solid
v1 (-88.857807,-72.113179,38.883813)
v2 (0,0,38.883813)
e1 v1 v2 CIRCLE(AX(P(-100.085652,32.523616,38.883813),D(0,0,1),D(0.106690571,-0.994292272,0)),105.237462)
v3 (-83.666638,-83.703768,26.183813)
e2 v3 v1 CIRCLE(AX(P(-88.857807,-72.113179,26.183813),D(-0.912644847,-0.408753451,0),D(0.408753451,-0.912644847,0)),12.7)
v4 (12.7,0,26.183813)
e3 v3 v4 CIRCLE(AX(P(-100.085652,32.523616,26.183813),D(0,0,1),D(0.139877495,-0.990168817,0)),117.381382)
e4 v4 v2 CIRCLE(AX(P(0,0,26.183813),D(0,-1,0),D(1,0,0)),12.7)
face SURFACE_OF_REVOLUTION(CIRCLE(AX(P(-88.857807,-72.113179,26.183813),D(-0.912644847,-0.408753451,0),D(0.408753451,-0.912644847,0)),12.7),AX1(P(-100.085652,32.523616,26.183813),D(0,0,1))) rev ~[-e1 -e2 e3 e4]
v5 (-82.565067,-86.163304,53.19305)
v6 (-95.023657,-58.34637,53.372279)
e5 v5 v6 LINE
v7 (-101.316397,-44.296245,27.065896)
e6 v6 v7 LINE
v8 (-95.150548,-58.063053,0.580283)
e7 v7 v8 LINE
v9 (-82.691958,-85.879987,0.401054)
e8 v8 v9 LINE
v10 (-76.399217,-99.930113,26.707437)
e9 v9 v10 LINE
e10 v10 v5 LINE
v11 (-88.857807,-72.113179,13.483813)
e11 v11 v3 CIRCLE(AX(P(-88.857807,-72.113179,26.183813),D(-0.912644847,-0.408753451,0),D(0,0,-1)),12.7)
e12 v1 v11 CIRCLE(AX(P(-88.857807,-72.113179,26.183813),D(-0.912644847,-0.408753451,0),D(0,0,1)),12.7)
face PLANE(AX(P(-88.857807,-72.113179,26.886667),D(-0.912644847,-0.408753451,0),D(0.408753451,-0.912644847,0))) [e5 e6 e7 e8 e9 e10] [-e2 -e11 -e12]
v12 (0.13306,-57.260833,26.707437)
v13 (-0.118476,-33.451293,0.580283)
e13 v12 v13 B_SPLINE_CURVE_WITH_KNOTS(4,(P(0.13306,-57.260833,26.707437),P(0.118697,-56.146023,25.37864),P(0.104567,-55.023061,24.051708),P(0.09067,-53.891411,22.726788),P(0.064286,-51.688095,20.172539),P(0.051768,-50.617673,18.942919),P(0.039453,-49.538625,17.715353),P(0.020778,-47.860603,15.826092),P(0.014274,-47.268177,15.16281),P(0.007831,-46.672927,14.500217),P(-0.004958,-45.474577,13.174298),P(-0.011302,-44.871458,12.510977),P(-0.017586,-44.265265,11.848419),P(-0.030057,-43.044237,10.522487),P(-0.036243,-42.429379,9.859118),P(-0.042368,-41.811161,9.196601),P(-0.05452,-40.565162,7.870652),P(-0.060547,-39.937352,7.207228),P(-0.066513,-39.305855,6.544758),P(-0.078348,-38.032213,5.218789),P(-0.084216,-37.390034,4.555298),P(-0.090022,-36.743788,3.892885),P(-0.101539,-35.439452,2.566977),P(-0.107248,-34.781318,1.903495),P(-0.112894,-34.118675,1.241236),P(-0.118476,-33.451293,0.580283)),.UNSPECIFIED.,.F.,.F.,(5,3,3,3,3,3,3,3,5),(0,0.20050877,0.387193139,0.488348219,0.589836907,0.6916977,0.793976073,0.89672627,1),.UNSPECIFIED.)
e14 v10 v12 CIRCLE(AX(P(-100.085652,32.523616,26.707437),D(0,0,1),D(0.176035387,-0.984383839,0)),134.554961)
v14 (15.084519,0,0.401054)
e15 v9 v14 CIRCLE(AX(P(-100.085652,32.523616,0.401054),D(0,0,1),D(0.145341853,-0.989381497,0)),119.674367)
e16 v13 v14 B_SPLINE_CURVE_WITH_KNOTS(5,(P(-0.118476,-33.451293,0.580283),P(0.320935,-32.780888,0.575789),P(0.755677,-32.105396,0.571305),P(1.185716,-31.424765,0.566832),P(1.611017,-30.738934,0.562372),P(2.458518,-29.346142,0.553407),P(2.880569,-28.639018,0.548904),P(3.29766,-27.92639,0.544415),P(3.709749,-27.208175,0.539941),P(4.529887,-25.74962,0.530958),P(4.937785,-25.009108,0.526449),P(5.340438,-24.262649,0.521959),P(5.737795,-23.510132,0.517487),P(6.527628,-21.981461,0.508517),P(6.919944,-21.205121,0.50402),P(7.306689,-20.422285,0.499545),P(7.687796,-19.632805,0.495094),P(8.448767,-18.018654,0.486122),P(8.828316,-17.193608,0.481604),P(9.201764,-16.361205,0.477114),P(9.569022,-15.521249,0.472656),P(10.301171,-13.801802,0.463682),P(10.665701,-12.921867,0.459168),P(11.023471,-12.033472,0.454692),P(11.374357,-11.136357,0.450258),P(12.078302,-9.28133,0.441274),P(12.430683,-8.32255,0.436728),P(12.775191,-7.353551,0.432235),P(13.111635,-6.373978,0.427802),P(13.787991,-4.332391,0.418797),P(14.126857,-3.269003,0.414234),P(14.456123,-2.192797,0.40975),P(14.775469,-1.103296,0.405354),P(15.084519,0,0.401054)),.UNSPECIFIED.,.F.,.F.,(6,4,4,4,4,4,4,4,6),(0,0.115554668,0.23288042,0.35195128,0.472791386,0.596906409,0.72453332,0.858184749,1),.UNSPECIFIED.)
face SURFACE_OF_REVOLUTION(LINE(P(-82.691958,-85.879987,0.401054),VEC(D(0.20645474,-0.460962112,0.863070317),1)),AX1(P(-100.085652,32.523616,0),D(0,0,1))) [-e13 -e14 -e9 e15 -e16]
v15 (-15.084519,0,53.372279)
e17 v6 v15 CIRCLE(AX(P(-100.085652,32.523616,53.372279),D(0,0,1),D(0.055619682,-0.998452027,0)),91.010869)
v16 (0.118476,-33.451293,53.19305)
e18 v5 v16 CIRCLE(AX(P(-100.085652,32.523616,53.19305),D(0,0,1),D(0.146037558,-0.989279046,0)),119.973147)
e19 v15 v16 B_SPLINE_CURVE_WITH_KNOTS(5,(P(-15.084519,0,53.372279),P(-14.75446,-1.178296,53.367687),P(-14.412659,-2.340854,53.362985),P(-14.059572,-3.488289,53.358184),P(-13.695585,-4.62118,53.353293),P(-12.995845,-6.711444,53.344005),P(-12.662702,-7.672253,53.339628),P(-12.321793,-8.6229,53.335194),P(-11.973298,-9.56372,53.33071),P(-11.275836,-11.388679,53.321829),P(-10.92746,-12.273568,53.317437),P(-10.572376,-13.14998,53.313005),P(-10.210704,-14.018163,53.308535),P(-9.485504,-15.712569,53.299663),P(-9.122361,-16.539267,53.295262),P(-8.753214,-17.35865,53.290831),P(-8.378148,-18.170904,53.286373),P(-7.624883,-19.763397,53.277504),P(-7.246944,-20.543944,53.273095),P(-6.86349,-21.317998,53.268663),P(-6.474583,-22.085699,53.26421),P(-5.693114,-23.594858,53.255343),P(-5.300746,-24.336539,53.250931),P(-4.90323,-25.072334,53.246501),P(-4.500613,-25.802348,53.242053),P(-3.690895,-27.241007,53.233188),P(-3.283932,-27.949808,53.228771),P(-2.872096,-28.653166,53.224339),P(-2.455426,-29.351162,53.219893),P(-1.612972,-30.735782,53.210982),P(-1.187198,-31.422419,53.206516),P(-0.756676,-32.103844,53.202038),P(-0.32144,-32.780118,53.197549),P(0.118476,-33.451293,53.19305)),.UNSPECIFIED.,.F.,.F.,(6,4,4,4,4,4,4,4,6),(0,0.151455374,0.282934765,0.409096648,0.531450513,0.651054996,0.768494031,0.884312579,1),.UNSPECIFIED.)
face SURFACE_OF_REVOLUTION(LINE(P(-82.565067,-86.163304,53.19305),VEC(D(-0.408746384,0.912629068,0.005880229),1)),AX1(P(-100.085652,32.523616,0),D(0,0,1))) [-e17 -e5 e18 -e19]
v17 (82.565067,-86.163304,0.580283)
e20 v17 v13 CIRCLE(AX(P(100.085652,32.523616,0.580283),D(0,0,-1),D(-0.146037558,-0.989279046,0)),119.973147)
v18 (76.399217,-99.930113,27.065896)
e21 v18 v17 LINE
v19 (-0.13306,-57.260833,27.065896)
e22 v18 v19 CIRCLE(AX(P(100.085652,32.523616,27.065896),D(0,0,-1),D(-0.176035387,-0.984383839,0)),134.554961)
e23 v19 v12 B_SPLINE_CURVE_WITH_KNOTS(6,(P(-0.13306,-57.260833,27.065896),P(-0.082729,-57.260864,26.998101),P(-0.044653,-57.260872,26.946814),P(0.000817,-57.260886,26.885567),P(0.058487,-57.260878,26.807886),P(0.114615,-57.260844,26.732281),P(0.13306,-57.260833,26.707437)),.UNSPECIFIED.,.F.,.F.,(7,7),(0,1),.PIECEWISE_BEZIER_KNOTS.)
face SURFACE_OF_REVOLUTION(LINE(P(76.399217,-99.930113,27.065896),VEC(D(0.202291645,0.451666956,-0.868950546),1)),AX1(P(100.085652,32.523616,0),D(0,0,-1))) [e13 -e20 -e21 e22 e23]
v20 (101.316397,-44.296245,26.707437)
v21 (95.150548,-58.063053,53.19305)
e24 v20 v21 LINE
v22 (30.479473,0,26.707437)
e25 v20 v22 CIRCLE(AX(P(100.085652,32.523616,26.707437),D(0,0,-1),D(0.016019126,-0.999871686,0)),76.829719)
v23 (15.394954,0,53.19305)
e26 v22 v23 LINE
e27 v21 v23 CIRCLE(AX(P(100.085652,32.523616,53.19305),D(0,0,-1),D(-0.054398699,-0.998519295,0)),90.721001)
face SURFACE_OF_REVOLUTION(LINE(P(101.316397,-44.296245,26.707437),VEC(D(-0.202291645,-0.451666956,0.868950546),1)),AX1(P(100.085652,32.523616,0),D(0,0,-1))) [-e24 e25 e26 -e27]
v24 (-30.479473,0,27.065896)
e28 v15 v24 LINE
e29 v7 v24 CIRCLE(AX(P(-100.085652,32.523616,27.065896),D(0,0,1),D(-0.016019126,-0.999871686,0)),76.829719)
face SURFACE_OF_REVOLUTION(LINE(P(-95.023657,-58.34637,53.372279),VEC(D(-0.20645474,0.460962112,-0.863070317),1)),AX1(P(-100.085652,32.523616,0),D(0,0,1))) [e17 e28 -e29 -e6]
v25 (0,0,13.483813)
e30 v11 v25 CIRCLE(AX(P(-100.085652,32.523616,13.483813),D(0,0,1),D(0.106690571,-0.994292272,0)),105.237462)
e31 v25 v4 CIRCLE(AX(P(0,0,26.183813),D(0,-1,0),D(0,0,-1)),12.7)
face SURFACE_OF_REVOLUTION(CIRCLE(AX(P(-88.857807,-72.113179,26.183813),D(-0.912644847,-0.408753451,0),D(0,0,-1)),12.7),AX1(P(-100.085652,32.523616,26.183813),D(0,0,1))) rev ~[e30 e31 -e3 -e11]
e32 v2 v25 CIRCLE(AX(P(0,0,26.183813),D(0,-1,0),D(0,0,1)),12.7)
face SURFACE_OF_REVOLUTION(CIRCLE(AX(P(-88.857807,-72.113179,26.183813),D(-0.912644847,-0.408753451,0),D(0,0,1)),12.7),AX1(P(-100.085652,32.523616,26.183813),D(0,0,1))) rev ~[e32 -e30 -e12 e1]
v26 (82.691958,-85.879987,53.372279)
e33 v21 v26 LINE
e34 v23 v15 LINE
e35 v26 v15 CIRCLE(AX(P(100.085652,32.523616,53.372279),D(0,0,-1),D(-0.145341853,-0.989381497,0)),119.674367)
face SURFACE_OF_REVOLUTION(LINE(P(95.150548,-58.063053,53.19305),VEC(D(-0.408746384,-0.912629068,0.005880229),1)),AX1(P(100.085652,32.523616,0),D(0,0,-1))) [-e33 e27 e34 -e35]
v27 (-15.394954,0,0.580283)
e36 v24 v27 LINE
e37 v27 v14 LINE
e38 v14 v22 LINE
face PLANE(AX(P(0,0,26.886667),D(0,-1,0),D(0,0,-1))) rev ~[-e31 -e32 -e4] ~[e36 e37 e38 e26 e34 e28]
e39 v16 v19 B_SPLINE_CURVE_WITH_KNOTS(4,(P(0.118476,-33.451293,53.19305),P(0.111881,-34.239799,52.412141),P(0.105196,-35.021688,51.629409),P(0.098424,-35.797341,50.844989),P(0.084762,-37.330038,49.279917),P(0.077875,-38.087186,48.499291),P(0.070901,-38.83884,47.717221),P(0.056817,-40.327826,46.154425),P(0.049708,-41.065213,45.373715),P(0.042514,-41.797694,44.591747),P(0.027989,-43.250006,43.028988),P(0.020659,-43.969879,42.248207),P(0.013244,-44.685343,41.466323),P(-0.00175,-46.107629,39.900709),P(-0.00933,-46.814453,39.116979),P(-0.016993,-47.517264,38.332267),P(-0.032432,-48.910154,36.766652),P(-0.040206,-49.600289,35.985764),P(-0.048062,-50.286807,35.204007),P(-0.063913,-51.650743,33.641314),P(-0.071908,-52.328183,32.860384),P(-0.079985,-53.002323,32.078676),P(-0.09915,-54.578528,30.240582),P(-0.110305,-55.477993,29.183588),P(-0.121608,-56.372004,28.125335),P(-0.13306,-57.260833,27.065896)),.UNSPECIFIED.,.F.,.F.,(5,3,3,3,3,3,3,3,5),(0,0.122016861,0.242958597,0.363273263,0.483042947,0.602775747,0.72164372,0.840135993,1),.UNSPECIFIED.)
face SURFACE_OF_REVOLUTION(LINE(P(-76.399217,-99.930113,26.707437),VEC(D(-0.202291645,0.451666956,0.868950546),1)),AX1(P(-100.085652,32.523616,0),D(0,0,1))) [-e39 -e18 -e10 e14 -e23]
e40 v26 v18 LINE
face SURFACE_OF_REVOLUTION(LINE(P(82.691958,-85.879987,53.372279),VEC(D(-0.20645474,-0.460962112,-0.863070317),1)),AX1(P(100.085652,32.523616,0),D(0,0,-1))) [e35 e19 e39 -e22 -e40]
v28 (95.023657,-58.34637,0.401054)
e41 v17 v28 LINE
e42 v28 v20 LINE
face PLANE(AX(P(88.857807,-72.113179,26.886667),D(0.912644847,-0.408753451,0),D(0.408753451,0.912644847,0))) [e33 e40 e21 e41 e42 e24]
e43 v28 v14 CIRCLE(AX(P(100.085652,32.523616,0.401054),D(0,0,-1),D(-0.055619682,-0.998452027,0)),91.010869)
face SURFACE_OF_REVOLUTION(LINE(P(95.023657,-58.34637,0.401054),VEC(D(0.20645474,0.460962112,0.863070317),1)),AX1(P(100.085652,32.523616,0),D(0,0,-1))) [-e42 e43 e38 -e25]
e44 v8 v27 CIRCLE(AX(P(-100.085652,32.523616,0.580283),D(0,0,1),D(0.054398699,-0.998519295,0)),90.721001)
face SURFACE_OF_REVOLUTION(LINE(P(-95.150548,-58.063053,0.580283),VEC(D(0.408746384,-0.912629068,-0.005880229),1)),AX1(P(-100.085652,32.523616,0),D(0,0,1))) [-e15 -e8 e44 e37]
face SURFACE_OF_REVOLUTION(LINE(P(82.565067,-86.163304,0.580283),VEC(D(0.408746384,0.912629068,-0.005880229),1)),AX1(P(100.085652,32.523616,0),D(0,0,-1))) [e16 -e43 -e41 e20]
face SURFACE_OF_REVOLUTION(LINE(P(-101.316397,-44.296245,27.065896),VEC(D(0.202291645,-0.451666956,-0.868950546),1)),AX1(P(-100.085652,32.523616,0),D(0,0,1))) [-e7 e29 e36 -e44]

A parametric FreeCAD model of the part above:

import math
import FreeCAD as App
import Part
import Sketcher

V = App.Vector
Q = App.Units.Quantity


def add_polygon(sketch, points):
    """Adds a closed chain of lines whose ends are joined by coincident constraints."""
    first, n = sketch.GeometryCount, len(points)
    for a, b in zip(points, points[1:] + points[:1]):
        sketch.addGeometry(Part.LineSegment(App.Vector(*a, 0), App.Vector(*b, 0)), False)
    for i in range(n):
        sketch.addConstraint(Sketcher.Constraint("Coincident", first + i, 2, first + (i + 1) % n, 1))

doc = App.newDocument("Part")
body = doc.addObject("PartDesign::Body", "Body")

# Sketch on XZ plane
sketch1 = body.newObject("Sketcher::SketchObject", "Sketch")
sketch1.AttachmentSupport = (doc.getObject("XZ_Plane"), [""])
sketch1.MapMode = "FlatFace"
add_polygon(sketch1, [(-30, 27), (-15, 1), (15, 0), (30, 27), (15, 53), (-15, 53)])  # lines 0-5
sketch1.addConstraint(Sketcher.Constraint("Parallel", 0, 3))
sketch1.addConstraint(Sketcher.Constraint("Parallel", 1, 4))
sketch1.addConstraint(Sketcher.Constraint("Parallel", 2, 5))
sketch1.addConstraint(Sketcher.Constraint("Equal", 0, 1))
sketch1.addConstraint(Sketcher.Constraint("Equal", 1, 2))
sketch1.addConstraint(Sketcher.Constraint("Equal", 2, 3))
sketch1.addConstraint(Sketcher.Constraint("Distance", 0, Q("1.2 in")))
sketch1.addConstraint(Sketcher.Constraint("DistanceX", -1, 1, 1, 2, 15.084519))
sketch1.addConstraint(Sketcher.Constraint("DistanceY", -1, 1, 3, 2, 53.19305))
sketch1.addConstraint(Sketcher.Constraint("DistanceX", 4, 2, -1, 1, 15.084519))
sketch1.addConstraint(Sketcher.Constraint("DistanceY", -1, 1, 4, 2, 53.372279))
sketch1.addConstraint(Sketcher.Constraint("DistanceX", 3, 2, 2, 2, 15.084519))

# Sketch on XY plane
sketch2 = body.newObject("Sketcher::SketchObject", "Sketch001")
sketch2.AttachmentSupport = (doc.getObject("XY_Plane"), [""])
sketch2.MapMode = "FlatFace"
sketch2.addGeometry(Part.ArcOfCircle(Part.Circle(V(100, 33, 0), V(0, 0, 1), 105), math.radians(-162), math.radians(-96)), False)
sketch2.addConstraint(Sketcher.Constraint("Coincident", 0, 1, -1, 1))
sketch2.addConstraint(Sketcher.Constraint("Radius", 0, 105.237462))
sketch2.addConstraint(Sketcher.Constraint("DistanceY", 0, 2, -1, 1, 72.113179))
sketch2.addConstraint(Sketcher.Constraint("DistanceX", -1, 1, 0, 3, 100.085652))
doc.recompute()

additivepipe = body.newObject("PartDesign::AdditivePipe", "AdditivePipe")
additivepipe.Profile = sketch1
additivepipe.Spine = (sketch2, ["Edge1"])

# Sketch on XZ plane
sketch3 = body.newObject("Sketcher::SketchObject", "Sketch002")
sketch3.AttachmentSupport = (doc.getObject("XZ_Plane"), [""])
sketch3.MapMode = "FlatFace"
add_polygon(sketch3, [(-30, 27), (-15, 1), (15, 0), (30, 27), (15, 53), (-15, 53)])  # lines 0-5
sketch3.addConstraint(Sketcher.Constraint("Parallel", 0, 3))
sketch3.addConstraint(Sketcher.Constraint("Parallel", 1, 4))
sketch3.addConstraint(Sketcher.Constraint("Parallel", 2, 5))
sketch3.addConstraint(Sketcher.Constraint("Equal", 0, 1))
sketch3.addConstraint(Sketcher.Constraint("Equal", 1, 2))
sketch3.addConstraint(Sketcher.Constraint("Equal", 2, 3))
sketch3.addConstraint(Sketcher.Constraint("Distance", 0, Q("1.2 in")))
sketch3.addConstraint(Sketcher.Constraint("DistanceX", -1, 1, 1, 2, 15.084519))
sketch3.addConstraint(Sketcher.Constraint("DistanceY", -1, 1, 3, 2, 53.19305))
sketch3.addConstraint(Sketcher.Constraint("DistanceX", 4, 2, -1, 1, 15.084519))
sketch3.addConstraint(Sketcher.Constraint("DistanceY", -1, 1, 4, 2, 53.372279))
sketch3.addConstraint(Sketcher.Constraint("DistanceX", 3, 2, 2, 2, 15.084519))

# Sketch on XY plane
sketch4 = body.newObject("Sketcher::SketchObject", "Sketch003")
sketch4.AttachmentSupport = (doc.getObject("XY_Plane"), [""])
sketch4.MapMode = "FlatFace"
sketch4.addGeometry(Part.ArcOfCircle(Part.Circle(V(-100, 33, 0), V(0, 0, 1), 105), math.radians(-84), math.radians(-18)), False)
sketch4.addConstraint(Sketcher.Constraint("Coincident", 0, 2, -1, 1))
sketch4.addConstraint(Sketcher.Constraint("Radius", 0, 105.237462))
sketch4.addConstraint(Sketcher.Constraint("DistanceY", 0, 1, -1, 1, 72.113179))
sketch4.addConstraint(Sketcher.Constraint("DistanceX", 0, 3, -1, 1, 100.085652))
doc.recompute()

additivepipe2 = body.newObject("PartDesign::AdditivePipe", "AdditivePipe001")
additivepipe2.Profile = sketch3
additivepipe2.Spine = (sketch4, ["Edge1"])

# Sketch on XZ plane
sketch5 = body.newObject("Sketcher::SketchObject", "Sketch004")
sketch5.AttachmentSupport = (doc.getObject("XZ_Plane"), [""])
sketch5.MapMode = "FlatFace"
sketch5.addGeometry(Part.ArcOfCircle(Part.Circle(V(0, 26, 0), V(0, 0, 1), 13), math.radians(-90), math.radians(0)), False)
sketch5.addGeometry(Part.ArcOfCircle(Part.Circle(V(0, 26, 0), V(0, 0, 1), 13), math.radians(0), math.radians(90)), False)
sketch5.addGeometry(Part.ArcOfCircle(Part.Circle(V(0, 26, 0), V(0, 0, 1), 13), math.radians(90), math.radians(270)), False)
sketch5.addConstraint(Sketcher.Constraint("Tangent", 0, 2, 1, 1))
sketch5.addConstraint(Sketcher.Constraint("Tangent", 1, 2, 2, 1))
sketch5.addConstraint(Sketcher.Constraint("Tangent", 2, 2, 0, 1))
sketch5.addConstraint(Sketcher.Constraint("PointOnObject", 0, 3, -2))
sketch5.addConstraint(Sketcher.Constraint("PointOnObject", 1, 2, -2))
sketch5.addConstraint(Sketcher.Constraint("PointOnObject", 2, 2, -2))
sketch5.addConstraint(Sketcher.Constraint("Horizontal", 2, 3, 0, 2))
sketch5.addConstraint(Sketcher.Constraint("Radius", 0, Q("0.5 in")))
sketch5.addConstraint(Sketcher.Constraint("DistanceY", -1, 1, 0, 3, 26.183813))

# Sketch on XY plane
sketch6 = body.newObject("Sketcher::SketchObject", "Sketch005")
sketch6.AttachmentSupport = (doc.getObject("XY_Plane"), [""])
sketch6.MapMode = "FlatFace"
sketch6.addGeometry(Part.ArcOfCircle(Part.Circle(V(-100, 33, 0), V(0, 0, 1), 105), math.radians(-84), math.radians(-18)), False)
sketch6.addConstraint(Sketcher.Constraint("Coincident", 0, 2, -1, 1))
sketch6.addConstraint(Sketcher.Constraint("Radius", 0, 105.237462))
sketch6.addConstraint(Sketcher.Constraint("DistanceY", 0, 1, -1, 1, 72.113179))
sketch6.addConstraint(Sketcher.Constraint("DistanceX", 0, 3, -1, 1, 100.085652))
doc.recompute()

subtractivepipe = body.newObject("PartDesign::SubtractivePipe", "SubtractivePipe")
subtractivepipe.Profile = sketch5
subtractivepipe.Spine = (sketch6, ["Edge1"])

doc.recompute()
